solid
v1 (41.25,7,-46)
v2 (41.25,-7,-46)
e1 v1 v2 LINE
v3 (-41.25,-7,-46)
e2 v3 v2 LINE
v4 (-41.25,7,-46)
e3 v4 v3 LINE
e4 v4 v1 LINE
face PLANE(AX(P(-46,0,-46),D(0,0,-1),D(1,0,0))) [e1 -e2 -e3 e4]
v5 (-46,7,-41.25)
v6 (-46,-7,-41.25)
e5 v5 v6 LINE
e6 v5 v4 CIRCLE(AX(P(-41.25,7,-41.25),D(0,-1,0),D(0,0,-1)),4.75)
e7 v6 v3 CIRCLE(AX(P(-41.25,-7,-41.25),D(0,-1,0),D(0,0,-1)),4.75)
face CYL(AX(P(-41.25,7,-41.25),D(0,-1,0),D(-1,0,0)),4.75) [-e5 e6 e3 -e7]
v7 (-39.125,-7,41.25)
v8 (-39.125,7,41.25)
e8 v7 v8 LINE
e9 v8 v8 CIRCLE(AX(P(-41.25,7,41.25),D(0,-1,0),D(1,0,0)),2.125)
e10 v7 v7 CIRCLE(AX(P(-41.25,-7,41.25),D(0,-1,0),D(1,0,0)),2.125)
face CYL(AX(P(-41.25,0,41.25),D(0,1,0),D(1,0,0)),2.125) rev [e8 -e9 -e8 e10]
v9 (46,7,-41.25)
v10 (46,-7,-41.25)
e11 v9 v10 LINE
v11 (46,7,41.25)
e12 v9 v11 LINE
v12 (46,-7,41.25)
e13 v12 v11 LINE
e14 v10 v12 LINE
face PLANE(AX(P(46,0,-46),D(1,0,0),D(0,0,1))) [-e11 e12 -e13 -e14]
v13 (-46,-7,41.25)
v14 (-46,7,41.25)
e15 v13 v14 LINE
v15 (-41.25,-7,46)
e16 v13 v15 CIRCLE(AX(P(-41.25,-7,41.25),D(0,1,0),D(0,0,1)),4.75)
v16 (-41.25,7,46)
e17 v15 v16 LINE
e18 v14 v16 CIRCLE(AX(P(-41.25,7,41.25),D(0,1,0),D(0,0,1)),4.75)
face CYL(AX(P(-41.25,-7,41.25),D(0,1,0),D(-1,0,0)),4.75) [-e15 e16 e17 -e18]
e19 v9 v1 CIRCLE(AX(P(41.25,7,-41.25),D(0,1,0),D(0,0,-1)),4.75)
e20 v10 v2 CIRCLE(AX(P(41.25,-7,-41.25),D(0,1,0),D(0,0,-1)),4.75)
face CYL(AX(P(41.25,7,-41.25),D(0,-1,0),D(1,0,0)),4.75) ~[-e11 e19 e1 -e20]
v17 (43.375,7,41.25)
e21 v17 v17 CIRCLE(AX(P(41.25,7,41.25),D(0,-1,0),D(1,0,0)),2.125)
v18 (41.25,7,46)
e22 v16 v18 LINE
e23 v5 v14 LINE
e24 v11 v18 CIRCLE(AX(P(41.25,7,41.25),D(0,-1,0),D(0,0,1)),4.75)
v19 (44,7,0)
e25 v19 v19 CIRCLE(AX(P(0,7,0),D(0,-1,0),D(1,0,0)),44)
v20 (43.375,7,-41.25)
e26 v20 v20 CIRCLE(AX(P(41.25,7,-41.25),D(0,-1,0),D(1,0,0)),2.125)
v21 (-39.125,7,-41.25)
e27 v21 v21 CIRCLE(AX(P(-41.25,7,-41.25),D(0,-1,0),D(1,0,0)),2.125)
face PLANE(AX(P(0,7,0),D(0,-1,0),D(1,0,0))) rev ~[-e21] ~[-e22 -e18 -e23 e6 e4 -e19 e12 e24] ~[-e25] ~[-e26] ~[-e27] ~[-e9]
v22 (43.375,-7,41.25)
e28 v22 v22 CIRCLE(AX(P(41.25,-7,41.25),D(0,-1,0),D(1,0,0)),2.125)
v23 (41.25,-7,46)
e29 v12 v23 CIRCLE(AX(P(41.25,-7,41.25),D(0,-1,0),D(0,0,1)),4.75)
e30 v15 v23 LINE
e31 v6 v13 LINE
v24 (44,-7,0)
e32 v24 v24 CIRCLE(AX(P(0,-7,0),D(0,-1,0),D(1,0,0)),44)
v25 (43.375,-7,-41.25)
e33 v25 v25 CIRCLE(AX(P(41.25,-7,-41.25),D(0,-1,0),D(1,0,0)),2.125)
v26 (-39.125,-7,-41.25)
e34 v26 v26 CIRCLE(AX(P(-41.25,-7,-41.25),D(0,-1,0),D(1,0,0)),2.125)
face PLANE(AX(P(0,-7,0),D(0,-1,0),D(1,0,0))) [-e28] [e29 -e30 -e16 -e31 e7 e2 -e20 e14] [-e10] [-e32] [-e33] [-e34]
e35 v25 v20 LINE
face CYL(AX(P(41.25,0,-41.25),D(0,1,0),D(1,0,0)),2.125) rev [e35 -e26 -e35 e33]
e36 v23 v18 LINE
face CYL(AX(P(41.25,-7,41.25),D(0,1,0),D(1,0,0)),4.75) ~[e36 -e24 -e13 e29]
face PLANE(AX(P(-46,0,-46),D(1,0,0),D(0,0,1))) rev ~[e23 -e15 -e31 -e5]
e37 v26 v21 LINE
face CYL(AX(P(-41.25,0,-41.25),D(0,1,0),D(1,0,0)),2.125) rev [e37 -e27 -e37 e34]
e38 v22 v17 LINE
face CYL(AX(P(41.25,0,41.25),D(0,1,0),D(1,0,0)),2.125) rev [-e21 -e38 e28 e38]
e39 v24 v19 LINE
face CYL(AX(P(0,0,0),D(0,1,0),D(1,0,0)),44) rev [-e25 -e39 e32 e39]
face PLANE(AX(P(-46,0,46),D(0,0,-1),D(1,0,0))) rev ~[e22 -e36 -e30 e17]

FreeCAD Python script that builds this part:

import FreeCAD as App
import Part
import Sketcher
from FreeCAD import Vector


def edges_at(feature, points):
    """Names of the edges that pass closest to the given points."""
    edges = feature.Shape.Edges
    near = lambda p: min(range(len(edges)), key=lambda i: edges[i].distToShape(Part.Vertex(*p))[0])
    return sorted({f"Edge{near(p) + 1}" for p in points})

doc = App.newDocument("Part")
body = doc.addObject("PartDesign::Body", "Body")

# Sketch on XZ plane
sketch1 = doc.addObject("Sketcher::SketchObject", "Sketch")
body.addObject(sketch1)
sketch1.AttachmentSupport = (doc.XZ_Plane, [""])
sketch1.MapMode = "FlatFace"
sketch1.addGeometry(Part.LineSegment(Vector(-46, 46, 0), Vector(-46, -46, 0)), False)
sketch1.addGeometry(Part.LineSegment(Vector(-46, -46, 0), Vector(46, -46, 0)), False)
sketch1.addGeometry(Part.LineSegment(Vector(46, -46, 0), Vector(46, 46, 0)), False)
sketch1.addGeometry(Part.LineSegment(Vector(46, 46, 0), Vector(-46, 46, 0)), False)
sketch1.addGeometry(Part.Circle(Vector(-41.2, -41.2, 0), Vector(0, 0, 1), 2.1), False)
sketch1.addGeometry(Part.Circle(Vector(41.2, -41.2, 0), Vector(0, 0, 1), 2.1), False)
sketch1.addGeometry(Part.Circle(Vector(-41.2, 41.2, 0), Vector(0, 0, 1), 2.1), False)
sketch1.addGeometry(Part.Circle(Vector(0, 0, 0), Vector(0, 0, 1), 44), False)
sketch1.addGeometry(Part.Circle(Vector(41.2, 41.2, 0), Vector(0, 0, 1), 2.1), False)
sketch1.addConstraint(Sketcher.Constraint("Coincident", 0, 2, 1, 1))
sketch1.addConstraint(Sketcher.Constraint("Coincident", 1, 2, 2, 1))
sketch1.addConstraint(Sketcher.Constraint("Coincident", 2, 2, 3, 1))
sketch1.addConstraint(Sketcher.Constraint("Coincident", 3, 2, 0, 1))
sketch1.addConstraint(Sketcher.Constraint("Vertical", 0))
sketch1.addConstraint(Sketcher.Constraint("Horizontal", 1))
sketch1.addConstraint(Sketcher.Constraint("Vertical", 2))
sketch1.addConstraint(Sketcher.Constraint("Horizontal", 3))
sketch1.addConstraint(Sketcher.Constraint("Coincident", 7, 3, -1, 1))
sketch1.addConstraint(Sketcher.Constraint("Equal", 4, 5))
sketch1.addConstraint(Sketcher.Constraint("Equal", 5, 6))
sketch1.addConstraint(Sketcher.Constraint("Equal", 6, 8))
sketch1.addConstraint(Sketcher.Constraint("Symmetric", 5, 3, 6, 3, -1, 1))
sketch1.addConstraint(Sketcher.Constraint("Symmetric", 4, 3, 8, 3, -1, 1))
sketch1.addConstraint(Sketcher.Constraint("Symmetric", 0, 2, 2, 2, -1, 1))
sketch1.addConstraint(Sketcher.Constraint("Symmetric", 4, 3, 5, 3, -2))
sketch1.addConstraint(Sketcher.Constraint("Equal", 3, 0))
sketch1.addConstraint(Sketcher.Constraint("Diameter", 7, 88.0))
sketch1.addConstraint(Sketcher.Constraint("Diameter", 4, 4.25))
sketch1.addConstraint(Sketcher.Constraint("DistanceX", 1, 1, 1, 2, 92.0))
sketch1.addConstraint(Sketcher.Constraint("DistanceX", 4, 3, 5, 3, 82.5))
sketch1.addConstraint(Sketcher.Constraint("DistanceY", 4, 3, 6, 3, 82.5))
pad1 = doc.addObject("PartDesign::Pad", "Pad")
body.addObject(pad1)
pad1.Profile = sketch1
pad1.Length = 14
pad1.Midplane = True
doc.recompute()

fillet = doc.addObject("PartDesign::Fillet", "Fillet")
body.addObject(fillet)
fillet.Base = (pad1, edges_at(pad1, [
    (-46, 0, 46),
    (46, 0, 46),
    (46, 0, -46),
    (-46, 0, -46),
]))
fillet.Radius = 4.75

doc.recompute()
